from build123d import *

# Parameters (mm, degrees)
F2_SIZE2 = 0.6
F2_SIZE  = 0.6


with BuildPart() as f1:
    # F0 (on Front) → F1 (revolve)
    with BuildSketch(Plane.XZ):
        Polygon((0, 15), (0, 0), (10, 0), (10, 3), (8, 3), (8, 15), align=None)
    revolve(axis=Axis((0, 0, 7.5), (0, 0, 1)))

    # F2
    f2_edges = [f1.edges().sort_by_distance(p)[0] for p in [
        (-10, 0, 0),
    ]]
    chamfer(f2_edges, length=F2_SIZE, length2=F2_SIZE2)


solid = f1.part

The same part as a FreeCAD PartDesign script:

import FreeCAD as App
import Part
import Sketcher

V = App.Vector


def edges_at(feature, points):
    """Names of the edges that pass closest to the given points."""
    edges = feature.Shape.Edges
    near = lambda p: min(range(len(edges)), key=lambda i: edges[i].distToShape(Part.Vertex(*p))[0])
    return sorted({f"Edge{near(p) + 1}" for p in points})


def add_polygon(sketch, points):
    """Adds a closed chain of lines whose ends are joined by coincident constraints."""
    first, n = sketch.GeometryCount, len(points)
    for a, b in zip(points, points[1:] + points[:1]):
        sketch.addGeometry(Part.LineSegment(App.Vector(*a, 0), App.Vector(*b, 0)), False)
    for i in range(n):
        sketch.addConstraint(Sketcher.Constraint("Coincident", first + i, 2, first + (i + 1) % n, 1))

doc = App.newDocument("Part")
body = doc.addObject("PartDesign::Body", "Body")

# Sketch on XZ plane
sketch1 = body.newObject("Sketcher::SketchObject", "Sketch")
sketch1.AttachmentSupport = (doc.getObject("XZ_Plane"), [""])
sketch1.MapMode = "FlatFace"
add_polygon(sketch1, [(0, 15), (0, 0), (10, 0), (10, 3), (8, 3), (8, 15)])  # lines 0-5
sketch1.addConstraint([
    Sketcher.Constraint("Vertical", 0),
    Sketcher.Constraint("Horizontal", 1),
    Sketcher.Constraint("Vertical", 2),
    Sketcher.Constraint("Horizontal", 3),
    Sketcher.Constraint("Vertical", 4),
    Sketcher.Constraint("Horizontal", 5),
    Sketcher.Constraint("Coincident", 0, 2, -1, 1),
    Sketcher.Constraint("DistanceX", 1, 1, 1, 2, 10.0),
    Sketcher.Constraint("DistanceX", 3, 2, 3, 1, 2.0),
    Sketcher.Constraint("DistanceY", 0, 2, 0, 1, 15.0),
    Sketcher.Constraint("DistanceY", 2, 1, 2, 2, 3.0),
])
revolution = body.newObject("PartDesign::Revolution", "Revolution")
revolution.Profile = sketch1
revolution.ReferenceAxis = (sketch1, ["V_Axis"])
revolution.Angle = 360
doc.recompute()

chamfer = body.newObject("PartDesign::Chamfer", "Chamfer")
chamfer.Base = (revolution, edges_at(revolution, [(-10, 0, 0)]))
chamfer.ChamferType = "Two distances"
chamfer.Size = 0.6
chamfer.Size2 = 0.6

doc.recompute()
